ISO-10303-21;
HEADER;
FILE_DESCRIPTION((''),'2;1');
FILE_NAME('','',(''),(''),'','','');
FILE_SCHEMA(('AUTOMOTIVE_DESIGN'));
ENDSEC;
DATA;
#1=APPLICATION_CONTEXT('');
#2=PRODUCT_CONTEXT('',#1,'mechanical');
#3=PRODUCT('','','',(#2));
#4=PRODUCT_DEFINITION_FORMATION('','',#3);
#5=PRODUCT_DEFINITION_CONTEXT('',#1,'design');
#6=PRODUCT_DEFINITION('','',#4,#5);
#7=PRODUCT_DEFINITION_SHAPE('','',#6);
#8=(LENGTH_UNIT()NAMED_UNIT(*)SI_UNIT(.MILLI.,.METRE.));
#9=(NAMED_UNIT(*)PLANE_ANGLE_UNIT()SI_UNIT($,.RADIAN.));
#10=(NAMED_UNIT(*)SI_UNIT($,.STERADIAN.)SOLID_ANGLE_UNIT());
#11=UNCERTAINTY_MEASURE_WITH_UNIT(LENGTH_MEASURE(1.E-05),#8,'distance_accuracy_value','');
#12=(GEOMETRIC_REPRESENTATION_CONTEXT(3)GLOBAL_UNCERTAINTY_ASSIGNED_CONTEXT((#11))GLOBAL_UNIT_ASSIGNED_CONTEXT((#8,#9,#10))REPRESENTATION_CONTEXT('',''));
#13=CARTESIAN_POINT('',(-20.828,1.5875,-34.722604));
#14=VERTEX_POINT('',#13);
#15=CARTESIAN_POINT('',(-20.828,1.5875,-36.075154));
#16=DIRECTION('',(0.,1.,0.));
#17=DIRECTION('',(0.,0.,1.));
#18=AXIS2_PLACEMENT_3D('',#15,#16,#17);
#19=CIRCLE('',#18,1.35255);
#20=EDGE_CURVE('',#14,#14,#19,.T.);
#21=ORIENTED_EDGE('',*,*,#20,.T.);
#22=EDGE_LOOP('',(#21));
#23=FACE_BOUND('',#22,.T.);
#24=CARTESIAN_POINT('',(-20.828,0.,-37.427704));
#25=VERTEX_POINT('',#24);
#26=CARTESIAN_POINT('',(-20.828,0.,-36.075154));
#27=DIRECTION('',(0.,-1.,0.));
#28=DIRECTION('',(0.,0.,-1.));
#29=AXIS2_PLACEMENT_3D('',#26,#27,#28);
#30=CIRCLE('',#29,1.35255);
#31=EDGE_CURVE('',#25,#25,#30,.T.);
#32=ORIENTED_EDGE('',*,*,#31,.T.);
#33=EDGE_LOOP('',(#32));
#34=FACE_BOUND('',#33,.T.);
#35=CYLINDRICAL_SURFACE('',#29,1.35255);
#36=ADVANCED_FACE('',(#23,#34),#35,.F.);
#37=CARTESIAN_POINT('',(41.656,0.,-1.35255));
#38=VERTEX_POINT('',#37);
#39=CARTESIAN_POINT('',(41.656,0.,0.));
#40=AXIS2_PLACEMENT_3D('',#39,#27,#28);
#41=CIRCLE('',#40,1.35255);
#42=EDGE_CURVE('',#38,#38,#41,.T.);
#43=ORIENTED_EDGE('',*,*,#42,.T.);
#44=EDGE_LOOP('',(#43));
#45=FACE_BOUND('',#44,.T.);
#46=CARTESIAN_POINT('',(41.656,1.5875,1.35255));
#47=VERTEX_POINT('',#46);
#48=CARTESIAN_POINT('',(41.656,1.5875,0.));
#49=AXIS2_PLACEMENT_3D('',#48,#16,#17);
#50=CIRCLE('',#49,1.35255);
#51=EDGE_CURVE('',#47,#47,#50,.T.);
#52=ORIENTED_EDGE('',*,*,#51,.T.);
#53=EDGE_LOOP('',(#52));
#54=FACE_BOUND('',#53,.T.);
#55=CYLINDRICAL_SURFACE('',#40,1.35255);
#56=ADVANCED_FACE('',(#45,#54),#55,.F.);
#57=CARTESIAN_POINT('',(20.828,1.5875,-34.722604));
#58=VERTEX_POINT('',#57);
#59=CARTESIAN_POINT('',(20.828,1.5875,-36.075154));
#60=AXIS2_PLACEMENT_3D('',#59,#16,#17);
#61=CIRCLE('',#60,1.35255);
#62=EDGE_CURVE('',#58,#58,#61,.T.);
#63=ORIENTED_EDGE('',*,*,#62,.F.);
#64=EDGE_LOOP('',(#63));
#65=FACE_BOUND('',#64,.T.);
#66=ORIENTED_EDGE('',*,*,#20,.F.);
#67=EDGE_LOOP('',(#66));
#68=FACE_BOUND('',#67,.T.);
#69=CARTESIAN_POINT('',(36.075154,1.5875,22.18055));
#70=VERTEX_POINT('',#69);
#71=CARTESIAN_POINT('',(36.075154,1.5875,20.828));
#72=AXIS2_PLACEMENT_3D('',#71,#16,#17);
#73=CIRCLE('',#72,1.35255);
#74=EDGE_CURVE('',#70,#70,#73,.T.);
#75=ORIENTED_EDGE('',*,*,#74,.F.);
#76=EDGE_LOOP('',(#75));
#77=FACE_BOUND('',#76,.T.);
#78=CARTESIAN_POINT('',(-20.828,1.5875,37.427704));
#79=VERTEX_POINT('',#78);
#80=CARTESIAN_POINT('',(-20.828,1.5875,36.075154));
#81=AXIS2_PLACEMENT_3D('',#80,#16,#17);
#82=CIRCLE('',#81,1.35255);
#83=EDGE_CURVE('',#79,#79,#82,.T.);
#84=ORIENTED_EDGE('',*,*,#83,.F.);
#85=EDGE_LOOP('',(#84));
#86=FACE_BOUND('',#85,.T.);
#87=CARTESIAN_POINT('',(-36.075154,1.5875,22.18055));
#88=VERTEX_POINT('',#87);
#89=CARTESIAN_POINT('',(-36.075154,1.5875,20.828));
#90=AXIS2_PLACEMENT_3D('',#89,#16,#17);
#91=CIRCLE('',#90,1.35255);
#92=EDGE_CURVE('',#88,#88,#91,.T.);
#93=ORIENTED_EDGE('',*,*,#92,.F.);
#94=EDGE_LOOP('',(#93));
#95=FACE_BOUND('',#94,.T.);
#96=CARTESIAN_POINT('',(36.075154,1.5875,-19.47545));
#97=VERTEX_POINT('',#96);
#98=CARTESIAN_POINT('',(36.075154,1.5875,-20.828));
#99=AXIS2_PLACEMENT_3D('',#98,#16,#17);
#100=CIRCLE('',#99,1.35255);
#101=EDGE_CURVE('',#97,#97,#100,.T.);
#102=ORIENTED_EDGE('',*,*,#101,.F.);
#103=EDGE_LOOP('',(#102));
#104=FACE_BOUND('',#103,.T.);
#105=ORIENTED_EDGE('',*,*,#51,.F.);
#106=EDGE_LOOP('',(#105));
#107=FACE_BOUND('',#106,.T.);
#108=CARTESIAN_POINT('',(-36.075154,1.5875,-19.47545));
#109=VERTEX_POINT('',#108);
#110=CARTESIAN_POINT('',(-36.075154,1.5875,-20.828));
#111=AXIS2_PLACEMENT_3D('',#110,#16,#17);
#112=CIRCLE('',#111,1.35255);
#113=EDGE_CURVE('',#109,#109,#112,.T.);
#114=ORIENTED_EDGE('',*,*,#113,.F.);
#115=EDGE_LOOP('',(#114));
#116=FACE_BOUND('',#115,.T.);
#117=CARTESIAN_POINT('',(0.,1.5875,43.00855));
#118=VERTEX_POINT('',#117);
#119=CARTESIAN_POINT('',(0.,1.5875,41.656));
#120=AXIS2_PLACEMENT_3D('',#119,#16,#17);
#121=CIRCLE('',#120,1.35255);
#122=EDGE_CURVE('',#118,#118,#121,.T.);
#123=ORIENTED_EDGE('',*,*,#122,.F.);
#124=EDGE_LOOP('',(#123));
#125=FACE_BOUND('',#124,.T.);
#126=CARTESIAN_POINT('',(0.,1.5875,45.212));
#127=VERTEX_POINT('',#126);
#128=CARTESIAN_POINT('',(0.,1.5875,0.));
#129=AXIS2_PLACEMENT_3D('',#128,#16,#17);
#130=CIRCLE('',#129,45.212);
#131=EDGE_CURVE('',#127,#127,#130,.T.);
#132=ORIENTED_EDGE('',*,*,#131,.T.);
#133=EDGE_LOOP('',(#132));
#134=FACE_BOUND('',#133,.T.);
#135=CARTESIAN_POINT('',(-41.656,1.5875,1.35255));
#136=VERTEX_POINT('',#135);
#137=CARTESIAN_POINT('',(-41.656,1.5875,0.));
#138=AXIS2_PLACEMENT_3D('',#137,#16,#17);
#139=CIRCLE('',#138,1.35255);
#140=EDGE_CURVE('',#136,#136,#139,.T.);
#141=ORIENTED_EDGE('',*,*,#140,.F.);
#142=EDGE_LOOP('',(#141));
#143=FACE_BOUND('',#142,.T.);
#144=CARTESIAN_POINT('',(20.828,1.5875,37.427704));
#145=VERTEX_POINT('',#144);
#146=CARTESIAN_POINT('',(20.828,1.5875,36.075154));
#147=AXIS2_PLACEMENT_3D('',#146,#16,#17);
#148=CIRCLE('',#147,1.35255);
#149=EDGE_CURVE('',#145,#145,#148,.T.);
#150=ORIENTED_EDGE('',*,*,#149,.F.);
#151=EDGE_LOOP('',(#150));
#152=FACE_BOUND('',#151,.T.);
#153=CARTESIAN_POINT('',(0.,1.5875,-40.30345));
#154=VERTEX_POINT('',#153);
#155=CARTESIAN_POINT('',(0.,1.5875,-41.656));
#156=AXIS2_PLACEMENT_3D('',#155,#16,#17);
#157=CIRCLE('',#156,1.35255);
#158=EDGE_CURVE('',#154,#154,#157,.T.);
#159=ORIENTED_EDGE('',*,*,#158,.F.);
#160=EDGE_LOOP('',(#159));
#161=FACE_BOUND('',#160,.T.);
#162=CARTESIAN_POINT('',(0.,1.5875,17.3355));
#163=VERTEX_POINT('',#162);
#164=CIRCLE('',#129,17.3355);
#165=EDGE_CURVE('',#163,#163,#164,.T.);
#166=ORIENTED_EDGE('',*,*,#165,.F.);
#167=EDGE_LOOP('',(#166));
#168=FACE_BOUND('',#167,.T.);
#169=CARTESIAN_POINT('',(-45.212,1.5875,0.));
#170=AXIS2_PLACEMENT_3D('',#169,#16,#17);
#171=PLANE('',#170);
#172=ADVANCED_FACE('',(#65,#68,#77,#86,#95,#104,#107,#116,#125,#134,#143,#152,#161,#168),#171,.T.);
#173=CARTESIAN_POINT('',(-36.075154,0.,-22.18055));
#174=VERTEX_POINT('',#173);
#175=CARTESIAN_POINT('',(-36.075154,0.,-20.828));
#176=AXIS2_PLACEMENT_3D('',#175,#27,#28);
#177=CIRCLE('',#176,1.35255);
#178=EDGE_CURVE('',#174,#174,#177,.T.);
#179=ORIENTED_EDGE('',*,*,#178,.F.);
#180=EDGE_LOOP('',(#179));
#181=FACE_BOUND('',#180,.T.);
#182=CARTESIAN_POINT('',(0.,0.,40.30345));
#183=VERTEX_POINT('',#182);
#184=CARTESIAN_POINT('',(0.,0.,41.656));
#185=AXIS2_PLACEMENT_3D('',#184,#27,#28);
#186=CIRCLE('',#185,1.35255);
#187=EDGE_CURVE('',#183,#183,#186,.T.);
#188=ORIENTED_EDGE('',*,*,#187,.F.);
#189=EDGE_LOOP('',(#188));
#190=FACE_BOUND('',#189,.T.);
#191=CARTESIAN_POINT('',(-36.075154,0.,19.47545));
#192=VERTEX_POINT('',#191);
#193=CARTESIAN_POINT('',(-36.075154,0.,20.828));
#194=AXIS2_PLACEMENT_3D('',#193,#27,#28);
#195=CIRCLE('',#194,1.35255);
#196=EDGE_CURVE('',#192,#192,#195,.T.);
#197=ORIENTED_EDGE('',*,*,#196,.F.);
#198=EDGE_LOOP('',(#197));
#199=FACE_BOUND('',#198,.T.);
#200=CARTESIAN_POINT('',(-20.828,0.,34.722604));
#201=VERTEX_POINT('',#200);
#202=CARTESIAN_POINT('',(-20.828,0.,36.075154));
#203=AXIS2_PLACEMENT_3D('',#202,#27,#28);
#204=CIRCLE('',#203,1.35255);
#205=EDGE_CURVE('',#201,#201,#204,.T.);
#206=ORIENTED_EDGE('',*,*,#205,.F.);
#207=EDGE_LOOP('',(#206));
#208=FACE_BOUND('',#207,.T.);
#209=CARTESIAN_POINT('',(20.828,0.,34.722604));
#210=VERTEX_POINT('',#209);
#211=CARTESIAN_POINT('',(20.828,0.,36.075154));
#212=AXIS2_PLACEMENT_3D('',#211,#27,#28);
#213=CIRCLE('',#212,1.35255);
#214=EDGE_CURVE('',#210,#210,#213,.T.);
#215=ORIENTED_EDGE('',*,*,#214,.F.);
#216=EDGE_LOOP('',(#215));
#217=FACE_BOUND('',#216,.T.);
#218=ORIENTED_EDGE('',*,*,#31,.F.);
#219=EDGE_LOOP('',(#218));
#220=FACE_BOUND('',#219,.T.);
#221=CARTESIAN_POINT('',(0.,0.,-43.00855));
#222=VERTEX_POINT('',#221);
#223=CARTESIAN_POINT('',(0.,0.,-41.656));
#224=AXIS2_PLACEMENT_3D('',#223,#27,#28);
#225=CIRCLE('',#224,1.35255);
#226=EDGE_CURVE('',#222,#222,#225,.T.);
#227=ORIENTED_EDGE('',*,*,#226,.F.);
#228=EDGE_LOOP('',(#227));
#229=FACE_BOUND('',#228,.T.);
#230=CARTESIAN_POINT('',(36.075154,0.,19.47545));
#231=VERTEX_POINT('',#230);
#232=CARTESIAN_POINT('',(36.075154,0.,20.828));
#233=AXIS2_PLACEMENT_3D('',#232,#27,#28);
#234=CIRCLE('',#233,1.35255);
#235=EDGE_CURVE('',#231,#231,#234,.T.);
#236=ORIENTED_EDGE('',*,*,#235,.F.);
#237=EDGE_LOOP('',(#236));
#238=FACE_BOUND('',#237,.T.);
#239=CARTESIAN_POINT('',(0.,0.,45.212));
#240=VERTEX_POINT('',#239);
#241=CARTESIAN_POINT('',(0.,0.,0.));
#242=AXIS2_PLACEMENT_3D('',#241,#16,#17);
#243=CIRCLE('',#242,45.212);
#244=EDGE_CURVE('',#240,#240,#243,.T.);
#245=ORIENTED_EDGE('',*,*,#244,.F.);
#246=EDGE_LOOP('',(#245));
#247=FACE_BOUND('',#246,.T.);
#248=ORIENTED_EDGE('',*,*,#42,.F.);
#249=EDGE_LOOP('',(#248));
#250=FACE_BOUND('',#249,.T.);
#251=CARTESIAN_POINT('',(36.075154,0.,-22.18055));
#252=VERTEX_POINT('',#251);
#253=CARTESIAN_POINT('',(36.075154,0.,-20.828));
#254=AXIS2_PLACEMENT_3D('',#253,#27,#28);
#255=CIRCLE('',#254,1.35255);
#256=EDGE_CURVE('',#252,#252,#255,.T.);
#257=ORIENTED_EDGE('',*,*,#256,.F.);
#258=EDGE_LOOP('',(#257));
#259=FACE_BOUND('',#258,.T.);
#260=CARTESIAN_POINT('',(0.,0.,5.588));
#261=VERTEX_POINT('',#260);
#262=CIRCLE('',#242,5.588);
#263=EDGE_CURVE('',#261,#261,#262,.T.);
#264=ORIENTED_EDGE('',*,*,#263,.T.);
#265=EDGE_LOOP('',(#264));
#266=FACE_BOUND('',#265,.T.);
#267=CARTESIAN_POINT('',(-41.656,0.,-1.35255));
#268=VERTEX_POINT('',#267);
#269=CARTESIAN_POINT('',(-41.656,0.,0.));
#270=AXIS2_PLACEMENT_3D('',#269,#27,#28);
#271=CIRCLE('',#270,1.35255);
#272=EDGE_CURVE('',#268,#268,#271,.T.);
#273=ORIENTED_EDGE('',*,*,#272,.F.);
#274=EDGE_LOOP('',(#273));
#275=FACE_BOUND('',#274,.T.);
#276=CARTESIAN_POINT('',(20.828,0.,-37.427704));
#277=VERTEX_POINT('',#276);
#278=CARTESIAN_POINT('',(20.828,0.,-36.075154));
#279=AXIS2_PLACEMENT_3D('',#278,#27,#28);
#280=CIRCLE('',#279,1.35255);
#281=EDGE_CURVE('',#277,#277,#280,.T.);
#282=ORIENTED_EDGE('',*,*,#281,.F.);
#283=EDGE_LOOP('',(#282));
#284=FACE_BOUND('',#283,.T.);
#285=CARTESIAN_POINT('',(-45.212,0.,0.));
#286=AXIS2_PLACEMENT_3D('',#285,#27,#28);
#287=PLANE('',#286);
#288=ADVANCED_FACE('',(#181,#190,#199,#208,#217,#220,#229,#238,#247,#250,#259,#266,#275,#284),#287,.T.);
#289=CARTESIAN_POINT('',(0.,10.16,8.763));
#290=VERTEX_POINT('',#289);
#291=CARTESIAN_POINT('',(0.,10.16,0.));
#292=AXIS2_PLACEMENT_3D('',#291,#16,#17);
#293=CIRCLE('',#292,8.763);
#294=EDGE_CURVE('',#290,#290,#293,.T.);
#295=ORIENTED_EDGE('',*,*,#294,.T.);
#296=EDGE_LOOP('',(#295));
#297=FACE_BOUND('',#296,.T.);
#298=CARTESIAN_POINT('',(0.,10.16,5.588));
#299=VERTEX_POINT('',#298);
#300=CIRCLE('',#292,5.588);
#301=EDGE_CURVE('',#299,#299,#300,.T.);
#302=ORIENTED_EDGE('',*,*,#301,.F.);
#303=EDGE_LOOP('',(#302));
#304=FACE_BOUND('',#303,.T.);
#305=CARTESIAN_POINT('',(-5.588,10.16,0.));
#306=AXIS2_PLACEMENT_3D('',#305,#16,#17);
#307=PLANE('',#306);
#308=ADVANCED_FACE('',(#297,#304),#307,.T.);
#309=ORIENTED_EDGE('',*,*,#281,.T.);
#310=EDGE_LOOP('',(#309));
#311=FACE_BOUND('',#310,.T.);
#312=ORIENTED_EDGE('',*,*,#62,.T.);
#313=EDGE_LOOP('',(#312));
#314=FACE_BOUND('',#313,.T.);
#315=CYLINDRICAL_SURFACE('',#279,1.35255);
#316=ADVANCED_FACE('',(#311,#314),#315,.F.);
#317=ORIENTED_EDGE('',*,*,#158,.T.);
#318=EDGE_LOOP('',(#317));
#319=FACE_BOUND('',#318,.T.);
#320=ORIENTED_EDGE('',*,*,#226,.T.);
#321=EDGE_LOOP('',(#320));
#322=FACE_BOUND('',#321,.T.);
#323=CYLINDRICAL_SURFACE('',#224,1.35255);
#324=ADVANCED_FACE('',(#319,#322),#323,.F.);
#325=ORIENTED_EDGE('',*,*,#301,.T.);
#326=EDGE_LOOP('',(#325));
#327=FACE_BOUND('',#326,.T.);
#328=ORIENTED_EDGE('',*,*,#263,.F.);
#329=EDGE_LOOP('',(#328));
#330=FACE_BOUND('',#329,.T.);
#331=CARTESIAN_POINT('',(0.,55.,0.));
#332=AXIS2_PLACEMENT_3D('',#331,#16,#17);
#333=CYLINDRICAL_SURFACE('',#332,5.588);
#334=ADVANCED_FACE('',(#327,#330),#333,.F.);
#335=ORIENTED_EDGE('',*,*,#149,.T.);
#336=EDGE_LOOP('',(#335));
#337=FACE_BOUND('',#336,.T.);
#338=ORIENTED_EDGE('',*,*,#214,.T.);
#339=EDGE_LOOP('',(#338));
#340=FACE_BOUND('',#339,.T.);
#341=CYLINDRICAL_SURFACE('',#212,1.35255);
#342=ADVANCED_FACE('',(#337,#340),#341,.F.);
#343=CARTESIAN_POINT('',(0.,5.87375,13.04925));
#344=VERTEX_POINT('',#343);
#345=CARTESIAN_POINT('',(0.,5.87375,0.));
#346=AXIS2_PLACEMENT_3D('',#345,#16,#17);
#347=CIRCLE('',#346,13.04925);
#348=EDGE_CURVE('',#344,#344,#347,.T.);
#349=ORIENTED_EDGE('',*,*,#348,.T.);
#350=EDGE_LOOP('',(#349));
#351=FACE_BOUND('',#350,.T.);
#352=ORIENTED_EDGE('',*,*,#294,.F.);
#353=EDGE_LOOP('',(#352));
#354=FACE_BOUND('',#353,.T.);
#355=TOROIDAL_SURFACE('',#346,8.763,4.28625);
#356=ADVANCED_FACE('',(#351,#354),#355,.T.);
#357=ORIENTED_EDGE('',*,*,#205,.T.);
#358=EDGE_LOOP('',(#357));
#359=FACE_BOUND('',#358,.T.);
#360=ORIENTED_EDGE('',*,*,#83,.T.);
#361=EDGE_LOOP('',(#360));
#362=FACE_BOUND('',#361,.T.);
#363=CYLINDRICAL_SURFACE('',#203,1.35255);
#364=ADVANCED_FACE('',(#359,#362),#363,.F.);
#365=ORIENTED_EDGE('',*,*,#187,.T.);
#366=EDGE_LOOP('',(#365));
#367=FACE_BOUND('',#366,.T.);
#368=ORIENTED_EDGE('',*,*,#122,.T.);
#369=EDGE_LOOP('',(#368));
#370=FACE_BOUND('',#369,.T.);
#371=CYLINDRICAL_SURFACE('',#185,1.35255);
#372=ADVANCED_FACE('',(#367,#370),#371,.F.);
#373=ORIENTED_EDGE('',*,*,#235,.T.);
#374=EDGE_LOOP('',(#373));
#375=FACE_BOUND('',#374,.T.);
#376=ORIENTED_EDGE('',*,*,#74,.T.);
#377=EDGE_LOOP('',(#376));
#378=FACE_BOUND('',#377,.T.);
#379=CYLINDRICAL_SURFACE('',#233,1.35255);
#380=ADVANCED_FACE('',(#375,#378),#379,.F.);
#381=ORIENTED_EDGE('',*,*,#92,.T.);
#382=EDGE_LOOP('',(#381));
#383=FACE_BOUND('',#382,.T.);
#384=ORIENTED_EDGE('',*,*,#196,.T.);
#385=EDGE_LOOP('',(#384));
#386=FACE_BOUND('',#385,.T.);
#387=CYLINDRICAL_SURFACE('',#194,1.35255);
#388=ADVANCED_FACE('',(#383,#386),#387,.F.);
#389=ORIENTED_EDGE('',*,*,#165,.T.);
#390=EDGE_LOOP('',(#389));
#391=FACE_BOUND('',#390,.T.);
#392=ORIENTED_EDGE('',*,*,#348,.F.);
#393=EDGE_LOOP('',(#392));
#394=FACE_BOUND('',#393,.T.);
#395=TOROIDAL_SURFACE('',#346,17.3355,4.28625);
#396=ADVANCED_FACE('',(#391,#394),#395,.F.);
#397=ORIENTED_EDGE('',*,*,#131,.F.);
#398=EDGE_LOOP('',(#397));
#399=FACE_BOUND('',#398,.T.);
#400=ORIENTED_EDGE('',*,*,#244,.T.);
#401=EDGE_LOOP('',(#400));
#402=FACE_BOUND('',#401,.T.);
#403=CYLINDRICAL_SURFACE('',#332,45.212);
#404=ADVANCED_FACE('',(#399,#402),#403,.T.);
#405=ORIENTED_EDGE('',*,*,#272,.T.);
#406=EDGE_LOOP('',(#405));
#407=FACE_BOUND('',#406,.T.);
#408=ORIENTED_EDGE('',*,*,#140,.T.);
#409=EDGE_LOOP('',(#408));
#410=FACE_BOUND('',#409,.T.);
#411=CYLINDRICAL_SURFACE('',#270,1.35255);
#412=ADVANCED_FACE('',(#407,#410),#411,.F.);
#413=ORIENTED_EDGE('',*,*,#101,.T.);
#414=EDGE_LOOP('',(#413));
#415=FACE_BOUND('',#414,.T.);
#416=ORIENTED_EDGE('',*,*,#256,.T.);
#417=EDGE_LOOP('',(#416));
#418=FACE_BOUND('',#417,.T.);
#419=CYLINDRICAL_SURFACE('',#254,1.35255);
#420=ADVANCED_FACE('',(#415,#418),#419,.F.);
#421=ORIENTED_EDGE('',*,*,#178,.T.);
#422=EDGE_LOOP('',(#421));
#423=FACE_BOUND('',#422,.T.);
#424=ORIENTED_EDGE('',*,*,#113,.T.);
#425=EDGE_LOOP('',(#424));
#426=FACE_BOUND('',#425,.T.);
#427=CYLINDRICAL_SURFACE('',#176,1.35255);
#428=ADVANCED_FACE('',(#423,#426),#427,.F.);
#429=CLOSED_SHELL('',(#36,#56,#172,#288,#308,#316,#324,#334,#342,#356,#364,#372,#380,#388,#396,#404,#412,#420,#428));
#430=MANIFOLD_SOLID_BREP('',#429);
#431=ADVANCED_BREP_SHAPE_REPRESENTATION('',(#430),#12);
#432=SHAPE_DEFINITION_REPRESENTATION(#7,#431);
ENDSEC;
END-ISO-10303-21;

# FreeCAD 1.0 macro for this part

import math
import FreeCAD as App
import Part
import Sketcher
Q = App.Units.Quantity

doc = App.newDocument("Part")
params = doc.addObject("Spreadsheet::Sheet", "Params")
for row, (alias, value) in enumerate([
    ("sketch1_height", "0.4 in"),
    ("sketch1_width", "1.56 in"),
    ("sketch1_width2", "0.125 in"),
    ("sketch1_height2", "0.0625 in"),
    ("revolution_angle", "360 deg"),
    ("hole_diameter", "0.1065 in"),
], start=1):
    params.set(f"A{row}", alias)
    params.set(f"B{row}", "=" + value)
    params.setAlias(f"B{row}", alias)

body = doc.addObject("PartDesign::Body", "Body")

sketch1 = doc.addObject("Sketcher::SketchObject", "Sketch")
body.addObject(sketch1)
sketch1.AttachmentSupport = (doc.XY_Plane, [""])
sketch1.MapMode = "FlatFace"
sketch1.addGeometry([
    Part.LineSegment(App.Vector(-45.2, 0, 0), App.Vector(-5.6, 0, 0)),
    Part.LineSegment(App.Vector(-5.6, 0, 0), App.Vector(-5.6, 10.2, 0)),
    Part.LineSegment(App.Vector(-5.6, 10.2, 0), App.Vector(-8.8, 10.2, 0)),
    Part.ArcOfCircle(Part.Circle(App.Vector(-8.8, 5.9, 0), App.Vector(0, 0, 1), 4.3), math.radians(90), math.radians(180)),
    Part.ArcOfCircle(Part.Circle(App.Vector(-17.3, 5.9, 0), App.Vector(0, 0, 1), 4.3), math.radians(-90), math.radians(0)),
    Part.LineSegment(App.Vector(-17.3, 1.6, 0), App.Vector(-45.2, 1.6, 0)),
    Part.LineSegment(App.Vector(-45.2, 1.6, 0), App.Vector(-45.2, 0, 0)),
], False)
sketch1.addConstraint([
    Sketcher.Constraint("Coincident", 0, 2, 1, 1),
    Sketcher.Constraint("Coincident", 1, 2, 2, 1),
    Sketcher.Constraint("Tangent", 2, 2, 3, 1),
    Sketcher.Constraint("Tangent", 3, 2, 4, 2),
    Sketcher.Constraint("Tangent", 4, 1, 5, 1),
    Sketcher.Constraint("Coincident", 5, 2, 6, 1),
    Sketcher.Constraint("Coincident", 6, 2, 0, 1),
    Sketcher.Constraint("Horizontal", 0),
    Sketcher.Constraint("Vertical", 1),
    Sketcher.Constraint("Horizontal", 2),
    Sketcher.Constraint("Horizontal", 5),
    Sketcher.Constraint("Vertical", 6),
    Sketcher.Constraint("Equal", 3, 4),
    Sketcher.Constraint("PointOnObject", 0, 2, -1),
    Sketcher.Constraint("Horizontal", 3, 3, 4, 3),
    Sketcher.Constraint("DistanceY", 1, 1, 1, 2, Q("0.4 in")),
    Sketcher.Constraint("DistanceX", 0, 1, 0, 2, Q("1.56 in")),
    Sketcher.Constraint("DistanceX", 2, 2, 2, 1, Q("0.125 in")),
    Sketcher.Constraint("DistanceY", 6, 2, 6, 1, Q("0.0625 in")),
    Sketcher.Constraint("DistanceX", 0, 2, -1, 1, Q("0.22 in")),
])
sketch1.setExpression("Constraints[15]", "Params.sketch1_height")
sketch1.setExpression("Constraints[16]", "Params.sketch1_width")
sketch1.setExpression("Constraints[17]", "Params.sketch1_width2")
sketch1.setExpression("Constraints[18]", "Params.sketch1_height2")
revolution = doc.addObject("PartDesign::Revolution", "Revolution")
body.addObject(revolution)
revolution.Profile = sketch1
revolution.ReferenceAxis = (sketch1, ["V_Axis"])
revolution.setExpression("Angle", "Params.revolution_angle")

sketch2 = doc.addObject("Sketcher::SketchObject", "Sketch001")
body.addObject(sketch2)
sketch2.AttachmentSupport = (doc.XZ_Plane, [""])
sketch2.MapMode = "FlatFace"
sketch2.addGeometry(Part.Circle(App.Vector(-41.7, 0, 0), App.Vector(0, 0, 1), 1.4), False)
sketch2.addConstraint([
    Sketcher.Constraint("PointOnObject", 0, 3, -1),
    Sketcher.Constraint("Diameter", 0, Q("0.1065 in")),
    Sketcher.Constraint("DistanceX", 0, 3, -1, 1, Q("1.64 in")),
])
doc.recompute()
hole = doc.addObject("PartDesign::Hole", "Hole")
body.addObject(hole)
hole.Profile = sketch2
hole.ThreadType = "None"
hole.setExpression("Diameter", "Params.hole_diameter")
hole.DepthType = "ThroughAll"
doc.recompute()

polarpattern = doc.addObject("PartDesign::PolarPattern", "PolarPattern")
body.addObject(polarpattern)
polarpattern.Originals = [hole]
polarpattern.Axis = (doc.Y_Axis, [""])
polarpattern.Angle = 360
polarpattern.Occurrences = 12
body.Tip = polarpattern

doc.recompute()
